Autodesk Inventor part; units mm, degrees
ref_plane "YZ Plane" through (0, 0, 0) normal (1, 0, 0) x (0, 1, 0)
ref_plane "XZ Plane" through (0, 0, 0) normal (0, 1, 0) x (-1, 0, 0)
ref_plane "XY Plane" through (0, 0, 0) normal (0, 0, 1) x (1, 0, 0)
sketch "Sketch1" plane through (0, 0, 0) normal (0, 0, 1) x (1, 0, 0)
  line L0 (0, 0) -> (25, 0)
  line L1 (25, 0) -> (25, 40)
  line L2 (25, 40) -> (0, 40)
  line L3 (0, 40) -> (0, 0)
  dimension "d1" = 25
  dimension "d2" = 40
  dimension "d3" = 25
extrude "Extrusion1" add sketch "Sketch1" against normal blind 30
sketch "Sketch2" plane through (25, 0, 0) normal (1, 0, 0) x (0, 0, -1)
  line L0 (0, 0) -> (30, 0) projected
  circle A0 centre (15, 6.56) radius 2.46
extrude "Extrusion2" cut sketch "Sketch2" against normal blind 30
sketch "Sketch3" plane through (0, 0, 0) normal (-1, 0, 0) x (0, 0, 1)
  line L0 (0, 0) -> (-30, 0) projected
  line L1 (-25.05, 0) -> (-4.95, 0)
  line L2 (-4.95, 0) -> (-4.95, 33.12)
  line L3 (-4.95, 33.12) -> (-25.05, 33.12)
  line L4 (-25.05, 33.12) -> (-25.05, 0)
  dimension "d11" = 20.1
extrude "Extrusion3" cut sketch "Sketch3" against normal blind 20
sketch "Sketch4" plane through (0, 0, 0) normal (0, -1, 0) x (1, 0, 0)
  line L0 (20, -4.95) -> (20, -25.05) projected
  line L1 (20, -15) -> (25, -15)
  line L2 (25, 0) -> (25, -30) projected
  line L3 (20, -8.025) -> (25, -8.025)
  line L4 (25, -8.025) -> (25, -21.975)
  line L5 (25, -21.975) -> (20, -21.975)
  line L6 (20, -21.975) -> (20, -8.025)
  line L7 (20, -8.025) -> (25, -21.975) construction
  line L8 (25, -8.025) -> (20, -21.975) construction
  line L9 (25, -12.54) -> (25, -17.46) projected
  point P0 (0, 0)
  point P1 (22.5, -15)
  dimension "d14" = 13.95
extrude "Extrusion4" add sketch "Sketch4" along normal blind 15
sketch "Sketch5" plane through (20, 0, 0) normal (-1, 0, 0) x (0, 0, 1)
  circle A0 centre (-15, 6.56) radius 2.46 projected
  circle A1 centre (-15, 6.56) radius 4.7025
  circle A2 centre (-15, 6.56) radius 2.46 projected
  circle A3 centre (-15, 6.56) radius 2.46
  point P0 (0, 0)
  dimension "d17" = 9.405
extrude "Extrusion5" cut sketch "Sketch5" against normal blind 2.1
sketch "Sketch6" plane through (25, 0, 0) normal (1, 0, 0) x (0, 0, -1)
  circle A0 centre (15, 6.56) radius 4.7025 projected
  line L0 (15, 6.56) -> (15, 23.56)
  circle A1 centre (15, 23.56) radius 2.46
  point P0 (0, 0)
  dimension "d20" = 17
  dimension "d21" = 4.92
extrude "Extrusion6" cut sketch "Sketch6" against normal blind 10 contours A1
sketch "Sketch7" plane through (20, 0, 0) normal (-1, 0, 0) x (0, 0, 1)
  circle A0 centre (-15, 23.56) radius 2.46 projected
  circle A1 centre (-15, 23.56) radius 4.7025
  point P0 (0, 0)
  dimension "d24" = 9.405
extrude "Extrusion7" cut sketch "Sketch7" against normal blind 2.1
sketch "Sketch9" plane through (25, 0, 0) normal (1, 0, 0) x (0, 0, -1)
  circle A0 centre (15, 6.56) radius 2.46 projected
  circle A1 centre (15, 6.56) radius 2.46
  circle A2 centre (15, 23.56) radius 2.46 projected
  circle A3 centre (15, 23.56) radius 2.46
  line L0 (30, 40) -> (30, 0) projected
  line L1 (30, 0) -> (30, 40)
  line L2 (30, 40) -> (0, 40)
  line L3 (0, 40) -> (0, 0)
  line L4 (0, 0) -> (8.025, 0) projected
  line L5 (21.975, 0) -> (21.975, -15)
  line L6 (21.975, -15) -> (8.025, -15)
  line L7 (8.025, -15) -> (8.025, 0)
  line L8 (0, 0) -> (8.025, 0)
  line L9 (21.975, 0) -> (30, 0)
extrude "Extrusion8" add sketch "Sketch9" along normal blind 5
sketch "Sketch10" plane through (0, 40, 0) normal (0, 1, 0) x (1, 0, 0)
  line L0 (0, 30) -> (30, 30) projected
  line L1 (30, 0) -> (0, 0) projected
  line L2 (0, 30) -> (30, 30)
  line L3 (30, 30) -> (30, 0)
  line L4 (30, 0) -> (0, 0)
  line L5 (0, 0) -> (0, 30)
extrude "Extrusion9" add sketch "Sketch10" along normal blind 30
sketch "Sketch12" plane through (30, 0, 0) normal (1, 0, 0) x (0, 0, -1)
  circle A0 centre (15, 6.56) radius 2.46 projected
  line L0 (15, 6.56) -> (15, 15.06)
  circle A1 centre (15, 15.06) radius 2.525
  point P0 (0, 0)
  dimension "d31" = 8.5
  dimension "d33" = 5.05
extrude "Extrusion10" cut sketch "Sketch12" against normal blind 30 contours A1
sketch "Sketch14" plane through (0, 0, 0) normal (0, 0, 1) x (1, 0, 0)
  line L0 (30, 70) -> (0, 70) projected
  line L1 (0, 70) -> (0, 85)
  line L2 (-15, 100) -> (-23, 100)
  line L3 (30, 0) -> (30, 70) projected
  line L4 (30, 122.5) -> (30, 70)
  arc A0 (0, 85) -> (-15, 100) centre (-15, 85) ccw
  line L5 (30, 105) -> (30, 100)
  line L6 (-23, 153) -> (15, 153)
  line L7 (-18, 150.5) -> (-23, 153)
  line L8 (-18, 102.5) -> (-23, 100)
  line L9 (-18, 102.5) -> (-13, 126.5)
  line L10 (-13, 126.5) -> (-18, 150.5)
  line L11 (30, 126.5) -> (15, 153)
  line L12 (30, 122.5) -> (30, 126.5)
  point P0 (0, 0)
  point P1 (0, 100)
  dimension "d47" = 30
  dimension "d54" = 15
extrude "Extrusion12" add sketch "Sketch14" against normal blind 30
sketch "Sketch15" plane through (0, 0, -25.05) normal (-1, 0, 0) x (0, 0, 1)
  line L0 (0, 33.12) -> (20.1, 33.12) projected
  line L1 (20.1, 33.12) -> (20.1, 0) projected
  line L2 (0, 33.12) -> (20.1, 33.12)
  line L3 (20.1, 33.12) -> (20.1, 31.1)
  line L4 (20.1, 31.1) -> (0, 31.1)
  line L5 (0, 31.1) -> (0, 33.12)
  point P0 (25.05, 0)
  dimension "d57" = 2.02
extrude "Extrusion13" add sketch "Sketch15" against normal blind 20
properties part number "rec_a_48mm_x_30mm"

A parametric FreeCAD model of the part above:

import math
import FreeCAD as App
import Part
import Sketcher
from FreeCAD import Vector
Q = App.Units.Quantity


def add_polygon(sketch, points):
    """Adds a closed chain of lines whose ends are joined by coincident constraints."""
    first, n = sketch.GeometryCount, len(points)
    for a, b in zip(points, points[1:] + points[:1]):
        sketch.addGeometry(Part.LineSegment(App.Vector(*a, 0), App.Vector(*b, 0)), False)
    for i in range(n):
        sketch.addConstraint(Sketcher.Constraint("Coincident", first + i, 2, first + (i + 1) % n, 1))

doc = App.newDocument("Part")
body = doc.addObject("PartDesign::Body", "Body")

# Sketch on XY plane
sketch1 = body.newObject("Sketcher::SketchObject", "Sketch")
sketch1.AttachmentSupport = (doc.getObject("XY_Plane"), [""])
sketch1.MapMode = "FlatFace"
add_polygon(sketch1, [(0, 40), (0, 0), (25, 0), (25, 40)])  # lines 0-3
sketch1.addConstraint(Sketcher.Constraint("Vertical", 0))
sketch1.addConstraint(Sketcher.Constraint("Horizontal", 1))
sketch1.addConstraint(Sketcher.Constraint("Vertical", 2))
sketch1.addConstraint(Sketcher.Constraint("Horizontal", 3))
sketch1.addConstraint(Sketcher.Constraint("Coincident", 0, 2, -1, 1))
sketch1.addConstraint(Sketcher.Constraint("DistanceX", 1, 1, 1, 2, Q("25 mm")))
sketch1.addConstraint(Sketcher.Constraint("DistanceY", 0, 2, 0, 1, Q("40 mm")))
pad1 = body.newObject("PartDesign::Pad", "Pad")
pad1.Profile = sketch1
pad1.Length = 30
pad1.Reversed = True

# Sketch on YZ plane
sketch2 = body.newObject("Sketcher::SketchObject", "Sketch001")
sketch2.AttachmentSupport = (doc.getObject("YZ_Plane"), [""])
sketch2.MapMode = "FlatFace"
sketch2.AttachmentOffset = App.Placement(Vector(0, 0, 25), App.Rotation())
sketch2.addGeometry(Part.Circle(Vector(6.6, -15, 0), Vector(0, 0, 1), 2.5), False)
sketch2.addConstraint(Sketcher.Constraint("Diameter", 0, Q("4.92 mm")))
sketch2.addConstraint(Sketcher.Constraint("DistanceY", 0, 3, -1, 1, Q("15 mm")))
sketch2.addConstraint(Sketcher.Constraint("DistanceX", -1, 1, 0, 3, Q("6.56 mm")))
pocket1 = body.newObject("PartDesign::Pocket", "Pocket")
pocket1.Profile = sketch2
pocket1.Length = 30

# Sketch on YZ plane
sketch3 = body.newObject("Sketcher::SketchObject", "Sketch002")
sketch3.AttachmentSupport = (doc.getObject("YZ_Plane"), [""])
sketch3.MapMode = "FlatFace"
add_polygon(sketch3, [(0, -25), (0, -5), (33, -5), (33, -25)])  # lines 0-3
sketch3.addConstraint(Sketcher.Constraint("Vertical", 0))
sketch3.addConstraint(Sketcher.Constraint("Horizontal", 1))
sketch3.addConstraint(Sketcher.Constraint("Vertical", 2))
sketch3.addConstraint(Sketcher.Constraint("Horizontal", 3))
sketch3.addConstraint(Sketcher.Constraint("PointOnObject", 0, 2, -2))
sketch3.addConstraint(Sketcher.Constraint("DistanceY", 0, 1, 0, 2, Q("20.1 mm")))
sketch3.addConstraint(Sketcher.Constraint("DistanceX", 1, 1, 1, 2, Q("33.12 mm")))
sketch3.addConstraint(Sketcher.Constraint("DistanceY", 0, 2, -1, 1, Q("4.95 mm")))
pocket2 = body.newObject("PartDesign::Pocket", "Pocket001")
pocket2.Profile = sketch3
pocket2.Length = 20
pocket2.Reversed = True

# Sketch on XZ plane
sketch4 = body.newObject("Sketcher::SketchObject", "Sketch003")
sketch4.AttachmentSupport = (doc.getObject("XZ_Plane"), [""])
sketch4.MapMode = "FlatFace"
add_polygon(sketch4, [(25, -8), (20, -8), (20, -22), (25, -22)])  # lines 0-3
sketch4.addConstraint(Sketcher.Constraint("Horizontal", 0))
sketch4.addConstraint(Sketcher.Constraint("Vertical", 1))
sketch4.addConstraint(Sketcher.Constraint("Horizontal", 2))
sketch4.addConstraint(Sketcher.Constraint("Vertical", 3))
sketch4.addConstraint(Sketcher.Constraint("DistanceY", 1, 2, 1, 1, Q("13.95 mm")))
sketch4.addConstraint(Sketcher.Constraint("DistanceX", 0, 2, 0, 1, Q("5 mm")))
sketch4.addConstraint(Sketcher.Constraint("DistanceX", -1, 1, 0, 2, Q("20 mm")))
sketch4.addConstraint(Sketcher.Constraint("DistanceY", 0, 2, -1, 1, Q("8.025 mm")))
pad2 = body.newObject("PartDesign::Pad", "Pad001")
pad2.Profile = sketch4
pad2.Length = 15

# Sketch on YZ plane
sketch5 = body.newObject("Sketcher::SketchObject", "Sketch004")
sketch5.AttachmentSupport = (doc.getObject("YZ_Plane"), [""])
sketch5.MapMode = "FlatFace"
sketch5.AttachmentOffset = App.Placement(Vector(0, 0, 20), App.Rotation())
sketch5.addGeometry(Part.Circle(Vector(6.6, -15, 0), Vector(0, 0, 1), 4.7), False)
sketch5.addGeometry(Part.Circle(Vector(6.6, -15, 0), Vector(0, 0, 1), 2.5), False)
sketch5.addConstraint(Sketcher.Constraint("Coincident", 1, 3, 0, 3))
sketch5.addConstraint(Sketcher.Constraint("Diameter", 0, Q("9.405 mm")))
sketch5.addConstraint(Sketcher.Constraint("Diameter", 1, Q("4.92 mm")))
sketch5.addConstraint(Sketcher.Constraint("DistanceY", 0, 3, -1, 1, Q("15 mm")))
sketch5.addConstraint(Sketcher.Constraint("DistanceX", -1, 1, 0, 3, Q("6.56 mm")))
pocket3 = body.newObject("PartDesign::Pocket", "Pocket002")
pocket3.Profile = sketch5
pocket3.Length = 2.1
pocket3.Reversed = True

# Sketch on YZ plane
sketch6 = body.newObject("Sketcher::SketchObject", "Sketch005")
sketch6.AttachmentSupport = (doc.getObject("YZ_Plane"), [""])
sketch6.MapMode = "FlatFace"
sketch6.AttachmentOffset = App.Placement(Vector(0, 0, 25), App.Rotation())
sketch6.addGeometry(Part.Circle(Vector(23.6, -15, 0), Vector(0, 0, 1), 2.5), False)
sketch6.addConstraint(Sketcher.Constraint("Diameter", 0, Q("4.92 mm")))
sketch6.addConstraint(Sketcher.Constraint("DistanceY", 0, 3, -1, 1, Q("15 mm")))
sketch6.addConstraint(Sketcher.Constraint("DistanceX", -1, 1, 0, 3, Q("23.56 mm")))
pocket4 = body.newObject("PartDesign::Pocket", "Pocket003")
pocket4.Profile = sketch6
pocket4.Length = 10

# Sketch on YZ plane
sketch7 = body.newObject("Sketcher::SketchObject", "Sketch006")
sketch7.AttachmentSupport = (doc.getObject("YZ_Plane"), [""])
sketch7.MapMode = "FlatFace"
sketch7.AttachmentOffset = App.Placement(Vector(0, 0, 20), App.Rotation())
sketch7.addGeometry(Part.Circle(Vector(23.6, -15, 0), Vector(0, 0, 1), 4.7), False)
sketch7.addGeometry(Part.Circle(Vector(23.6, -15, 0), Vector(0, 0, 1), 2.5), False)
sketch7.addConstraint(Sketcher.Constraint("Coincident", 1, 3, 0, 3))
sketch7.addConstraint(Sketcher.Constraint("Diameter", 0, Q("9.405 mm")))
sketch7.addConstraint(Sketcher.Constraint("Diameter", 1, Q("4.92 mm")))
sketch7.addConstraint(Sketcher.Constraint("DistanceY", 0, 3, -1, 1, Q("15 mm")))
sketch7.addConstraint(Sketcher.Constraint("DistanceX", -1, 1, 0, 3, Q("23.56 mm")))
pocket5 = body.newObject("PartDesign::Pocket", "Pocket004")
pocket5.Profile = sketch7
pocket5.Length = 2.1
pocket5.Reversed = True

# Sketch on YZ plane
sketch8 = body.newObject("Sketcher::SketchObject", "Sketch007")
sketch8.AttachmentSupport = (doc.getObject("YZ_Plane"), [""])
sketch8.MapMode = "FlatFace"
sketch8.AttachmentOffset = App.Placement(Vector(0, 0, 25), App.Rotation())
add_polygon(sketch8, [(0, -30), (40, -30), (40, 0), (0, 0), (0, -8), (-15, -8), (-15, -22), (0, -22)])  # lines 0-7
sketch8.addGeometry(Part.Circle(Vector(6.6, -15, 0), Vector(0, 0, 1), 2.5), False)  # 8
sketch8.addGeometry(Part.Circle(Vector(23.6, -15, 0), Vector(0, 0, 1), 2.5), False)  # 9
sketch8.addConstraint(Sketcher.Constraint("Horizontal", 0))
sketch8.addConstraint(Sketcher.Constraint("Vertical", 1))
sketch8.addConstraint(Sketcher.Constraint("Horizontal", 2))
sketch8.addConstraint(Sketcher.Constraint("Vertical", 3))
sketch8.addConstraint(Sketcher.Constraint("Horizontal", 4))
sketch8.addConstraint(Sketcher.Constraint("Vertical", 5))
sketch8.addConstraint(Sketcher.Constraint("Horizontal", 6))
sketch8.addConstraint(Sketcher.Constraint("Vertical", 7))
sketch8.addConstraint(Sketcher.Constraint("Coincident", 2, 2, -1, 1))
sketch8.addConstraint(Sketcher.Constraint("Equal", 8, 9))
sketch8.addConstraint(Sketcher.Constraint("PointOnObject", 6, 2, -2))
sketch8.addConstraint(Sketcher.Constraint("Horizontal", 8, 3, 9, 3))
sketch8.addConstraint(Sketcher.Constraint("Equal", 3, 7))
sketch8.addConstraint(Sketcher.Constraint("Diameter", 8, Q("4.92 mm")))
sketch8.addConstraint(Sketcher.Constraint("DistanceX", 0, 1, 0, 2, Q("40 mm")))
sketch8.addConstraint(Sketcher.Constraint("DistanceX", 4, 2, 4, 1, Q("15 mm")))
sketch8.addConstraint(Sketcher.Constraint("DistanceY", 1, 1, 1, 2, Q("30 mm")))
sketch8.addConstraint(Sketcher.Constraint("DistanceY", 8, 3, -1, 1, Q("15 mm")))
sketch8.addConstraint(Sketcher.Constraint("DistanceX", 8, 3, 9, 3, Q("17 mm")))
sketch8.addConstraint(Sketcher.Constraint("DistanceY", 5, 2, 5, 1, Q("13.95 mm")))
sketch8.addConstraint(Sketcher.Constraint("DistanceX", -1, 1, 8, 3, Q("6.56 mm")))
pad3 = body.newObject("PartDesign::Pad", "Pad002")
pad3.Profile = sketch8
pad3.Length = 5

# Sketch on XZ plane
sketch9 = body.newObject("Sketcher::SketchObject", "Sketch008")
sketch9.AttachmentSupport = (doc.getObject("XZ_Plane"), [""])
sketch9.MapMode = "FlatFace"
sketch9.AttachmentOffset = App.Placement(Vector(0, 0, -40), App.Rotation())
add_polygon(sketch9, [(30, -30), (0, -30), (0, 0), (30, 0)])  # lines 0-3
sketch9.addConstraint(Sketcher.Constraint("Horizontal", 0))
sketch9.addConstraint(Sketcher.Constraint("Vertical", 1))
sketch9.addConstraint(Sketcher.Constraint("Horizontal", 2))
sketch9.addConstraint(Sketcher.Constraint("Vertical", 3))
sketch9.addConstraint(Sketcher.Constraint("Coincident", 1, 2, -1, 1))
sketch9.addConstraint(Sketcher.Constraint("Equal", 2, 1))
sketch9.addConstraint(Sketcher.Constraint("DistanceX", 0, 2, 0, 1, Q("30 mm")))
pad4 = body.newObject("PartDesign::Pad", "Pad003")
pad4.Profile = sketch9
pad4.Length = 30
pad4.Reversed = True

# Sketch on YZ plane
sketch10 = body.newObject("Sketcher::SketchObject", "Sketch009")
sketch10.AttachmentSupport = (doc.getObject("YZ_Plane"), [""])
sketch10.MapMode = "FlatFace"
sketch10.AttachmentOffset = App.Placement(Vector(0, 0, 30), App.Rotation())
sketch10.addGeometry(Part.Circle(Vector(15.1, -15, 0), Vector(0, 0, 1), 2.5), False)
sketch10.addConstraint(Sketcher.Constraint("Diameter", 0, Q("5.05 mm")))
sketch10.addConstraint(Sketcher.Constraint("DistanceY", 0, 3, -1, 1, Q("15 mm")))
sketch10.addConstraint(Sketcher.Constraint("DistanceX", -1, 1, 0, 3, Q("15.06 mm")))
pocket6 = body.newObject("PartDesign::Pocket", "Pocket005")
pocket6.Profile = sketch10
pocket6.Length = 30

# Sketch on XY plane
sketch11 = body.newObject("Sketcher::SketchObject", "Sketch010")
sketch11.AttachmentSupport = (doc.getObject("XY_Plane"), [""])
sketch11.MapMode = "FlatFace"
sketch11.addGeometry(Part.LineSegment(Vector(0, 70, 0), Vector(30, 70, 0)), False)
sketch11.addGeometry(Part.LineSegment(Vector(30, 70, 0), Vector(30, 126, 0)), False)
sketch11.addGeometry(Part.LineSegment(Vector(30, 126, 0), Vector(15, 153, 0)), False)
sketch11.addGeometry(Part.LineSegment(Vector(15, 153, 0), Vector(-23, 153, 0)), False)
sketch11.addGeometry(Part.LineSegment(Vector(-23, 153, 0), Vector(-18, 150, 0)), False)
sketch11.addGeometry(Part.LineSegment(Vector(-18, 150, 0), Vector(-13, 126, 0)), False)
sketch11.addGeometry(Part.LineSegment(Vector(-13, 126, 0), Vector(-18, 102, 0)), False)
sketch11.addGeometry(Part.LineSegment(Vector(-18, 102, 0), Vector(-23, 100, 0)), False)
sketch11.addGeometry(Part.LineSegment(Vector(-23, 100, 0), Vector(-15, 100, 0)), False)
sketch11.addGeometry(Part.ArcOfCircle(Part.Circle(Vector(-15, 85, 0), Vector(0, 0, 1), 15), math.radians(0), math.radians(90)), False)
sketch11.addGeometry(Part.LineSegment(Vector(0, 85, 0), Vector(0, 70, 0)), False)
sketch11.addConstraint(Sketcher.Constraint("Coincident", 0, 2, 1, 1))
sketch11.addConstraint(Sketcher.Constraint("Coincident", 1, 2, 2, 1))
sketch11.addConstraint(Sketcher.Constraint("Coincident", 2, 2, 3, 1))
sketch11.addConstraint(Sketcher.Constraint("Coincident", 3, 2, 4, 1))
sketch11.addConstraint(Sketcher.Constraint("Coincident", 4, 2, 5, 1))
sketch11.addConstraint(Sketcher.Constraint("Coincident", 5, 2, 6, 1))
sketch11.addConstraint(Sketcher.Constraint("Coincident", 6, 2, 7, 1))
sketch11.addConstraint(Sketcher.Constraint("Coincident", 7, 2, 8, 1))
sketch11.addConstraint(Sketcher.Constraint("Tangent", 8, 2, 9, 2))
sketch11.addConstraint(Sketcher.Constraint("Tangent", 9, 1, 10, 1))
sketch11.addConstraint(Sketcher.Constraint("Coincident", 10, 2, 0, 1))
sketch11.addConstraint(Sketcher.Constraint("Horizontal", 0))
sketch11.addConstraint(Sketcher.Constraint("Vertical", 1))
sketch11.addConstraint(Sketcher.Constraint("Horizontal", 3))
sketch11.addConstraint(Sketcher.Constraint("Horizontal", 8))
sketch11.addConstraint(Sketcher.Constraint("Vertical", 10))
sketch11.addConstraint(Sketcher.Constraint("PointOnObject", 9, 1, -2))
sketch11.addConstraint(Sketcher.Constraint("Horizontal", 1, 2, 5, 2))
sketch11.addConstraint(Sketcher.Constraint("Vertical", 4, 2, 6, 2))
sketch11.addConstraint(Sketcher.Constraint("Vertical", 3, 2, 7, 2))
sketch11.addConstraint(Sketcher.Constraint("Equal", 5, 6))
sketch11.addConstraint(Sketcher.Constraint("Equal", 4, 7))
sketch11.addConstraint(Sketcher.Constraint("Radius", 9, Q("15 mm")))
sketch11.addConstraint(Sketcher.Constraint("DistanceX", 0, 1, 0, 2, Q("30 mm")))
sketch11.addConstraint(Sketcher.Constraint("DistanceY", 10, 2, 10, 1, Q("15 mm")))
sketch11.addConstraint(Sketcher.Constraint("DistanceX", -1, 1, 2, 2, Q("15 mm")))
sketch11.addConstraint(Sketcher.Constraint("DistanceX", 3, 2, 3, 1, Q("38 mm")))
sketch11.addConstraint(Sketcher.Constraint("DistanceY", 1, 1, 1, 2, Q("56.5 mm")))
sketch11.addConstraint(Sketcher.Constraint("DistanceY", -1, 1, 9, 3, Q("85 mm")))
sketch11.addConstraint(Sketcher.Constraint("DistanceX", 4, 2, -1, 1, Q("18 mm")))
sketch11.addConstraint(Sketcher.Constraint("DistanceX", 5, 2, -1, 1, Q("13 mm")))
sketch11.addConstraint(Sketcher.Constraint("DistanceY", 1, 2, 4, 2, Q("24 mm")))
pad5 = body.newObject("PartDesign::Pad", "Pad004")
pad5.Profile = sketch11
pad5.Length = 30
pad5.Reversed = True

# Sketch on YZ plane
sketch12 = body.newObject("Sketcher::SketchObject", "Sketch011")
sketch12.AttachmentSupport = (doc.getObject("YZ_Plane"), [""])
sketch12.MapMode = "FlatFace"
add_polygon(sketch12, [(33.1, -5), (33.1, -25.1), (31.1, -25.1), (31.1, -5)])  # lines 0-3
sketch12.addConstraint(Sketcher.Constraint("Vertical", 0))
sketch12.addConstraint(Sketcher.Constraint("Horizontal", 1))
sketch12.addConstraint(Sketcher.Constraint("Vertical", 2))
sketch12.addConstraint(Sketcher.Constraint("Horizontal", 3))
sketch12.addConstraint(Sketcher.Constraint("DistanceX", 1, 2, 1, 1, Q("2.02 mm")))
sketch12.addConstraint(Sketcher.Constraint("DistanceY", 0, 2, 0, 1, Q("20.1 mm")))
sketch12.addConstraint(Sketcher.Constraint("DistanceX", -1, 1, 1, 2, Q("31.1 mm")))
sketch12.addConstraint(Sketcher.Constraint("DistanceY", 0, 2, -1, 1, Q("25.05 mm")))
pad6 = body.newObject("PartDesign::Pad", "Pad005")
pad6.Profile = sketch12
pad6.Length = 20

doc.recompute()
